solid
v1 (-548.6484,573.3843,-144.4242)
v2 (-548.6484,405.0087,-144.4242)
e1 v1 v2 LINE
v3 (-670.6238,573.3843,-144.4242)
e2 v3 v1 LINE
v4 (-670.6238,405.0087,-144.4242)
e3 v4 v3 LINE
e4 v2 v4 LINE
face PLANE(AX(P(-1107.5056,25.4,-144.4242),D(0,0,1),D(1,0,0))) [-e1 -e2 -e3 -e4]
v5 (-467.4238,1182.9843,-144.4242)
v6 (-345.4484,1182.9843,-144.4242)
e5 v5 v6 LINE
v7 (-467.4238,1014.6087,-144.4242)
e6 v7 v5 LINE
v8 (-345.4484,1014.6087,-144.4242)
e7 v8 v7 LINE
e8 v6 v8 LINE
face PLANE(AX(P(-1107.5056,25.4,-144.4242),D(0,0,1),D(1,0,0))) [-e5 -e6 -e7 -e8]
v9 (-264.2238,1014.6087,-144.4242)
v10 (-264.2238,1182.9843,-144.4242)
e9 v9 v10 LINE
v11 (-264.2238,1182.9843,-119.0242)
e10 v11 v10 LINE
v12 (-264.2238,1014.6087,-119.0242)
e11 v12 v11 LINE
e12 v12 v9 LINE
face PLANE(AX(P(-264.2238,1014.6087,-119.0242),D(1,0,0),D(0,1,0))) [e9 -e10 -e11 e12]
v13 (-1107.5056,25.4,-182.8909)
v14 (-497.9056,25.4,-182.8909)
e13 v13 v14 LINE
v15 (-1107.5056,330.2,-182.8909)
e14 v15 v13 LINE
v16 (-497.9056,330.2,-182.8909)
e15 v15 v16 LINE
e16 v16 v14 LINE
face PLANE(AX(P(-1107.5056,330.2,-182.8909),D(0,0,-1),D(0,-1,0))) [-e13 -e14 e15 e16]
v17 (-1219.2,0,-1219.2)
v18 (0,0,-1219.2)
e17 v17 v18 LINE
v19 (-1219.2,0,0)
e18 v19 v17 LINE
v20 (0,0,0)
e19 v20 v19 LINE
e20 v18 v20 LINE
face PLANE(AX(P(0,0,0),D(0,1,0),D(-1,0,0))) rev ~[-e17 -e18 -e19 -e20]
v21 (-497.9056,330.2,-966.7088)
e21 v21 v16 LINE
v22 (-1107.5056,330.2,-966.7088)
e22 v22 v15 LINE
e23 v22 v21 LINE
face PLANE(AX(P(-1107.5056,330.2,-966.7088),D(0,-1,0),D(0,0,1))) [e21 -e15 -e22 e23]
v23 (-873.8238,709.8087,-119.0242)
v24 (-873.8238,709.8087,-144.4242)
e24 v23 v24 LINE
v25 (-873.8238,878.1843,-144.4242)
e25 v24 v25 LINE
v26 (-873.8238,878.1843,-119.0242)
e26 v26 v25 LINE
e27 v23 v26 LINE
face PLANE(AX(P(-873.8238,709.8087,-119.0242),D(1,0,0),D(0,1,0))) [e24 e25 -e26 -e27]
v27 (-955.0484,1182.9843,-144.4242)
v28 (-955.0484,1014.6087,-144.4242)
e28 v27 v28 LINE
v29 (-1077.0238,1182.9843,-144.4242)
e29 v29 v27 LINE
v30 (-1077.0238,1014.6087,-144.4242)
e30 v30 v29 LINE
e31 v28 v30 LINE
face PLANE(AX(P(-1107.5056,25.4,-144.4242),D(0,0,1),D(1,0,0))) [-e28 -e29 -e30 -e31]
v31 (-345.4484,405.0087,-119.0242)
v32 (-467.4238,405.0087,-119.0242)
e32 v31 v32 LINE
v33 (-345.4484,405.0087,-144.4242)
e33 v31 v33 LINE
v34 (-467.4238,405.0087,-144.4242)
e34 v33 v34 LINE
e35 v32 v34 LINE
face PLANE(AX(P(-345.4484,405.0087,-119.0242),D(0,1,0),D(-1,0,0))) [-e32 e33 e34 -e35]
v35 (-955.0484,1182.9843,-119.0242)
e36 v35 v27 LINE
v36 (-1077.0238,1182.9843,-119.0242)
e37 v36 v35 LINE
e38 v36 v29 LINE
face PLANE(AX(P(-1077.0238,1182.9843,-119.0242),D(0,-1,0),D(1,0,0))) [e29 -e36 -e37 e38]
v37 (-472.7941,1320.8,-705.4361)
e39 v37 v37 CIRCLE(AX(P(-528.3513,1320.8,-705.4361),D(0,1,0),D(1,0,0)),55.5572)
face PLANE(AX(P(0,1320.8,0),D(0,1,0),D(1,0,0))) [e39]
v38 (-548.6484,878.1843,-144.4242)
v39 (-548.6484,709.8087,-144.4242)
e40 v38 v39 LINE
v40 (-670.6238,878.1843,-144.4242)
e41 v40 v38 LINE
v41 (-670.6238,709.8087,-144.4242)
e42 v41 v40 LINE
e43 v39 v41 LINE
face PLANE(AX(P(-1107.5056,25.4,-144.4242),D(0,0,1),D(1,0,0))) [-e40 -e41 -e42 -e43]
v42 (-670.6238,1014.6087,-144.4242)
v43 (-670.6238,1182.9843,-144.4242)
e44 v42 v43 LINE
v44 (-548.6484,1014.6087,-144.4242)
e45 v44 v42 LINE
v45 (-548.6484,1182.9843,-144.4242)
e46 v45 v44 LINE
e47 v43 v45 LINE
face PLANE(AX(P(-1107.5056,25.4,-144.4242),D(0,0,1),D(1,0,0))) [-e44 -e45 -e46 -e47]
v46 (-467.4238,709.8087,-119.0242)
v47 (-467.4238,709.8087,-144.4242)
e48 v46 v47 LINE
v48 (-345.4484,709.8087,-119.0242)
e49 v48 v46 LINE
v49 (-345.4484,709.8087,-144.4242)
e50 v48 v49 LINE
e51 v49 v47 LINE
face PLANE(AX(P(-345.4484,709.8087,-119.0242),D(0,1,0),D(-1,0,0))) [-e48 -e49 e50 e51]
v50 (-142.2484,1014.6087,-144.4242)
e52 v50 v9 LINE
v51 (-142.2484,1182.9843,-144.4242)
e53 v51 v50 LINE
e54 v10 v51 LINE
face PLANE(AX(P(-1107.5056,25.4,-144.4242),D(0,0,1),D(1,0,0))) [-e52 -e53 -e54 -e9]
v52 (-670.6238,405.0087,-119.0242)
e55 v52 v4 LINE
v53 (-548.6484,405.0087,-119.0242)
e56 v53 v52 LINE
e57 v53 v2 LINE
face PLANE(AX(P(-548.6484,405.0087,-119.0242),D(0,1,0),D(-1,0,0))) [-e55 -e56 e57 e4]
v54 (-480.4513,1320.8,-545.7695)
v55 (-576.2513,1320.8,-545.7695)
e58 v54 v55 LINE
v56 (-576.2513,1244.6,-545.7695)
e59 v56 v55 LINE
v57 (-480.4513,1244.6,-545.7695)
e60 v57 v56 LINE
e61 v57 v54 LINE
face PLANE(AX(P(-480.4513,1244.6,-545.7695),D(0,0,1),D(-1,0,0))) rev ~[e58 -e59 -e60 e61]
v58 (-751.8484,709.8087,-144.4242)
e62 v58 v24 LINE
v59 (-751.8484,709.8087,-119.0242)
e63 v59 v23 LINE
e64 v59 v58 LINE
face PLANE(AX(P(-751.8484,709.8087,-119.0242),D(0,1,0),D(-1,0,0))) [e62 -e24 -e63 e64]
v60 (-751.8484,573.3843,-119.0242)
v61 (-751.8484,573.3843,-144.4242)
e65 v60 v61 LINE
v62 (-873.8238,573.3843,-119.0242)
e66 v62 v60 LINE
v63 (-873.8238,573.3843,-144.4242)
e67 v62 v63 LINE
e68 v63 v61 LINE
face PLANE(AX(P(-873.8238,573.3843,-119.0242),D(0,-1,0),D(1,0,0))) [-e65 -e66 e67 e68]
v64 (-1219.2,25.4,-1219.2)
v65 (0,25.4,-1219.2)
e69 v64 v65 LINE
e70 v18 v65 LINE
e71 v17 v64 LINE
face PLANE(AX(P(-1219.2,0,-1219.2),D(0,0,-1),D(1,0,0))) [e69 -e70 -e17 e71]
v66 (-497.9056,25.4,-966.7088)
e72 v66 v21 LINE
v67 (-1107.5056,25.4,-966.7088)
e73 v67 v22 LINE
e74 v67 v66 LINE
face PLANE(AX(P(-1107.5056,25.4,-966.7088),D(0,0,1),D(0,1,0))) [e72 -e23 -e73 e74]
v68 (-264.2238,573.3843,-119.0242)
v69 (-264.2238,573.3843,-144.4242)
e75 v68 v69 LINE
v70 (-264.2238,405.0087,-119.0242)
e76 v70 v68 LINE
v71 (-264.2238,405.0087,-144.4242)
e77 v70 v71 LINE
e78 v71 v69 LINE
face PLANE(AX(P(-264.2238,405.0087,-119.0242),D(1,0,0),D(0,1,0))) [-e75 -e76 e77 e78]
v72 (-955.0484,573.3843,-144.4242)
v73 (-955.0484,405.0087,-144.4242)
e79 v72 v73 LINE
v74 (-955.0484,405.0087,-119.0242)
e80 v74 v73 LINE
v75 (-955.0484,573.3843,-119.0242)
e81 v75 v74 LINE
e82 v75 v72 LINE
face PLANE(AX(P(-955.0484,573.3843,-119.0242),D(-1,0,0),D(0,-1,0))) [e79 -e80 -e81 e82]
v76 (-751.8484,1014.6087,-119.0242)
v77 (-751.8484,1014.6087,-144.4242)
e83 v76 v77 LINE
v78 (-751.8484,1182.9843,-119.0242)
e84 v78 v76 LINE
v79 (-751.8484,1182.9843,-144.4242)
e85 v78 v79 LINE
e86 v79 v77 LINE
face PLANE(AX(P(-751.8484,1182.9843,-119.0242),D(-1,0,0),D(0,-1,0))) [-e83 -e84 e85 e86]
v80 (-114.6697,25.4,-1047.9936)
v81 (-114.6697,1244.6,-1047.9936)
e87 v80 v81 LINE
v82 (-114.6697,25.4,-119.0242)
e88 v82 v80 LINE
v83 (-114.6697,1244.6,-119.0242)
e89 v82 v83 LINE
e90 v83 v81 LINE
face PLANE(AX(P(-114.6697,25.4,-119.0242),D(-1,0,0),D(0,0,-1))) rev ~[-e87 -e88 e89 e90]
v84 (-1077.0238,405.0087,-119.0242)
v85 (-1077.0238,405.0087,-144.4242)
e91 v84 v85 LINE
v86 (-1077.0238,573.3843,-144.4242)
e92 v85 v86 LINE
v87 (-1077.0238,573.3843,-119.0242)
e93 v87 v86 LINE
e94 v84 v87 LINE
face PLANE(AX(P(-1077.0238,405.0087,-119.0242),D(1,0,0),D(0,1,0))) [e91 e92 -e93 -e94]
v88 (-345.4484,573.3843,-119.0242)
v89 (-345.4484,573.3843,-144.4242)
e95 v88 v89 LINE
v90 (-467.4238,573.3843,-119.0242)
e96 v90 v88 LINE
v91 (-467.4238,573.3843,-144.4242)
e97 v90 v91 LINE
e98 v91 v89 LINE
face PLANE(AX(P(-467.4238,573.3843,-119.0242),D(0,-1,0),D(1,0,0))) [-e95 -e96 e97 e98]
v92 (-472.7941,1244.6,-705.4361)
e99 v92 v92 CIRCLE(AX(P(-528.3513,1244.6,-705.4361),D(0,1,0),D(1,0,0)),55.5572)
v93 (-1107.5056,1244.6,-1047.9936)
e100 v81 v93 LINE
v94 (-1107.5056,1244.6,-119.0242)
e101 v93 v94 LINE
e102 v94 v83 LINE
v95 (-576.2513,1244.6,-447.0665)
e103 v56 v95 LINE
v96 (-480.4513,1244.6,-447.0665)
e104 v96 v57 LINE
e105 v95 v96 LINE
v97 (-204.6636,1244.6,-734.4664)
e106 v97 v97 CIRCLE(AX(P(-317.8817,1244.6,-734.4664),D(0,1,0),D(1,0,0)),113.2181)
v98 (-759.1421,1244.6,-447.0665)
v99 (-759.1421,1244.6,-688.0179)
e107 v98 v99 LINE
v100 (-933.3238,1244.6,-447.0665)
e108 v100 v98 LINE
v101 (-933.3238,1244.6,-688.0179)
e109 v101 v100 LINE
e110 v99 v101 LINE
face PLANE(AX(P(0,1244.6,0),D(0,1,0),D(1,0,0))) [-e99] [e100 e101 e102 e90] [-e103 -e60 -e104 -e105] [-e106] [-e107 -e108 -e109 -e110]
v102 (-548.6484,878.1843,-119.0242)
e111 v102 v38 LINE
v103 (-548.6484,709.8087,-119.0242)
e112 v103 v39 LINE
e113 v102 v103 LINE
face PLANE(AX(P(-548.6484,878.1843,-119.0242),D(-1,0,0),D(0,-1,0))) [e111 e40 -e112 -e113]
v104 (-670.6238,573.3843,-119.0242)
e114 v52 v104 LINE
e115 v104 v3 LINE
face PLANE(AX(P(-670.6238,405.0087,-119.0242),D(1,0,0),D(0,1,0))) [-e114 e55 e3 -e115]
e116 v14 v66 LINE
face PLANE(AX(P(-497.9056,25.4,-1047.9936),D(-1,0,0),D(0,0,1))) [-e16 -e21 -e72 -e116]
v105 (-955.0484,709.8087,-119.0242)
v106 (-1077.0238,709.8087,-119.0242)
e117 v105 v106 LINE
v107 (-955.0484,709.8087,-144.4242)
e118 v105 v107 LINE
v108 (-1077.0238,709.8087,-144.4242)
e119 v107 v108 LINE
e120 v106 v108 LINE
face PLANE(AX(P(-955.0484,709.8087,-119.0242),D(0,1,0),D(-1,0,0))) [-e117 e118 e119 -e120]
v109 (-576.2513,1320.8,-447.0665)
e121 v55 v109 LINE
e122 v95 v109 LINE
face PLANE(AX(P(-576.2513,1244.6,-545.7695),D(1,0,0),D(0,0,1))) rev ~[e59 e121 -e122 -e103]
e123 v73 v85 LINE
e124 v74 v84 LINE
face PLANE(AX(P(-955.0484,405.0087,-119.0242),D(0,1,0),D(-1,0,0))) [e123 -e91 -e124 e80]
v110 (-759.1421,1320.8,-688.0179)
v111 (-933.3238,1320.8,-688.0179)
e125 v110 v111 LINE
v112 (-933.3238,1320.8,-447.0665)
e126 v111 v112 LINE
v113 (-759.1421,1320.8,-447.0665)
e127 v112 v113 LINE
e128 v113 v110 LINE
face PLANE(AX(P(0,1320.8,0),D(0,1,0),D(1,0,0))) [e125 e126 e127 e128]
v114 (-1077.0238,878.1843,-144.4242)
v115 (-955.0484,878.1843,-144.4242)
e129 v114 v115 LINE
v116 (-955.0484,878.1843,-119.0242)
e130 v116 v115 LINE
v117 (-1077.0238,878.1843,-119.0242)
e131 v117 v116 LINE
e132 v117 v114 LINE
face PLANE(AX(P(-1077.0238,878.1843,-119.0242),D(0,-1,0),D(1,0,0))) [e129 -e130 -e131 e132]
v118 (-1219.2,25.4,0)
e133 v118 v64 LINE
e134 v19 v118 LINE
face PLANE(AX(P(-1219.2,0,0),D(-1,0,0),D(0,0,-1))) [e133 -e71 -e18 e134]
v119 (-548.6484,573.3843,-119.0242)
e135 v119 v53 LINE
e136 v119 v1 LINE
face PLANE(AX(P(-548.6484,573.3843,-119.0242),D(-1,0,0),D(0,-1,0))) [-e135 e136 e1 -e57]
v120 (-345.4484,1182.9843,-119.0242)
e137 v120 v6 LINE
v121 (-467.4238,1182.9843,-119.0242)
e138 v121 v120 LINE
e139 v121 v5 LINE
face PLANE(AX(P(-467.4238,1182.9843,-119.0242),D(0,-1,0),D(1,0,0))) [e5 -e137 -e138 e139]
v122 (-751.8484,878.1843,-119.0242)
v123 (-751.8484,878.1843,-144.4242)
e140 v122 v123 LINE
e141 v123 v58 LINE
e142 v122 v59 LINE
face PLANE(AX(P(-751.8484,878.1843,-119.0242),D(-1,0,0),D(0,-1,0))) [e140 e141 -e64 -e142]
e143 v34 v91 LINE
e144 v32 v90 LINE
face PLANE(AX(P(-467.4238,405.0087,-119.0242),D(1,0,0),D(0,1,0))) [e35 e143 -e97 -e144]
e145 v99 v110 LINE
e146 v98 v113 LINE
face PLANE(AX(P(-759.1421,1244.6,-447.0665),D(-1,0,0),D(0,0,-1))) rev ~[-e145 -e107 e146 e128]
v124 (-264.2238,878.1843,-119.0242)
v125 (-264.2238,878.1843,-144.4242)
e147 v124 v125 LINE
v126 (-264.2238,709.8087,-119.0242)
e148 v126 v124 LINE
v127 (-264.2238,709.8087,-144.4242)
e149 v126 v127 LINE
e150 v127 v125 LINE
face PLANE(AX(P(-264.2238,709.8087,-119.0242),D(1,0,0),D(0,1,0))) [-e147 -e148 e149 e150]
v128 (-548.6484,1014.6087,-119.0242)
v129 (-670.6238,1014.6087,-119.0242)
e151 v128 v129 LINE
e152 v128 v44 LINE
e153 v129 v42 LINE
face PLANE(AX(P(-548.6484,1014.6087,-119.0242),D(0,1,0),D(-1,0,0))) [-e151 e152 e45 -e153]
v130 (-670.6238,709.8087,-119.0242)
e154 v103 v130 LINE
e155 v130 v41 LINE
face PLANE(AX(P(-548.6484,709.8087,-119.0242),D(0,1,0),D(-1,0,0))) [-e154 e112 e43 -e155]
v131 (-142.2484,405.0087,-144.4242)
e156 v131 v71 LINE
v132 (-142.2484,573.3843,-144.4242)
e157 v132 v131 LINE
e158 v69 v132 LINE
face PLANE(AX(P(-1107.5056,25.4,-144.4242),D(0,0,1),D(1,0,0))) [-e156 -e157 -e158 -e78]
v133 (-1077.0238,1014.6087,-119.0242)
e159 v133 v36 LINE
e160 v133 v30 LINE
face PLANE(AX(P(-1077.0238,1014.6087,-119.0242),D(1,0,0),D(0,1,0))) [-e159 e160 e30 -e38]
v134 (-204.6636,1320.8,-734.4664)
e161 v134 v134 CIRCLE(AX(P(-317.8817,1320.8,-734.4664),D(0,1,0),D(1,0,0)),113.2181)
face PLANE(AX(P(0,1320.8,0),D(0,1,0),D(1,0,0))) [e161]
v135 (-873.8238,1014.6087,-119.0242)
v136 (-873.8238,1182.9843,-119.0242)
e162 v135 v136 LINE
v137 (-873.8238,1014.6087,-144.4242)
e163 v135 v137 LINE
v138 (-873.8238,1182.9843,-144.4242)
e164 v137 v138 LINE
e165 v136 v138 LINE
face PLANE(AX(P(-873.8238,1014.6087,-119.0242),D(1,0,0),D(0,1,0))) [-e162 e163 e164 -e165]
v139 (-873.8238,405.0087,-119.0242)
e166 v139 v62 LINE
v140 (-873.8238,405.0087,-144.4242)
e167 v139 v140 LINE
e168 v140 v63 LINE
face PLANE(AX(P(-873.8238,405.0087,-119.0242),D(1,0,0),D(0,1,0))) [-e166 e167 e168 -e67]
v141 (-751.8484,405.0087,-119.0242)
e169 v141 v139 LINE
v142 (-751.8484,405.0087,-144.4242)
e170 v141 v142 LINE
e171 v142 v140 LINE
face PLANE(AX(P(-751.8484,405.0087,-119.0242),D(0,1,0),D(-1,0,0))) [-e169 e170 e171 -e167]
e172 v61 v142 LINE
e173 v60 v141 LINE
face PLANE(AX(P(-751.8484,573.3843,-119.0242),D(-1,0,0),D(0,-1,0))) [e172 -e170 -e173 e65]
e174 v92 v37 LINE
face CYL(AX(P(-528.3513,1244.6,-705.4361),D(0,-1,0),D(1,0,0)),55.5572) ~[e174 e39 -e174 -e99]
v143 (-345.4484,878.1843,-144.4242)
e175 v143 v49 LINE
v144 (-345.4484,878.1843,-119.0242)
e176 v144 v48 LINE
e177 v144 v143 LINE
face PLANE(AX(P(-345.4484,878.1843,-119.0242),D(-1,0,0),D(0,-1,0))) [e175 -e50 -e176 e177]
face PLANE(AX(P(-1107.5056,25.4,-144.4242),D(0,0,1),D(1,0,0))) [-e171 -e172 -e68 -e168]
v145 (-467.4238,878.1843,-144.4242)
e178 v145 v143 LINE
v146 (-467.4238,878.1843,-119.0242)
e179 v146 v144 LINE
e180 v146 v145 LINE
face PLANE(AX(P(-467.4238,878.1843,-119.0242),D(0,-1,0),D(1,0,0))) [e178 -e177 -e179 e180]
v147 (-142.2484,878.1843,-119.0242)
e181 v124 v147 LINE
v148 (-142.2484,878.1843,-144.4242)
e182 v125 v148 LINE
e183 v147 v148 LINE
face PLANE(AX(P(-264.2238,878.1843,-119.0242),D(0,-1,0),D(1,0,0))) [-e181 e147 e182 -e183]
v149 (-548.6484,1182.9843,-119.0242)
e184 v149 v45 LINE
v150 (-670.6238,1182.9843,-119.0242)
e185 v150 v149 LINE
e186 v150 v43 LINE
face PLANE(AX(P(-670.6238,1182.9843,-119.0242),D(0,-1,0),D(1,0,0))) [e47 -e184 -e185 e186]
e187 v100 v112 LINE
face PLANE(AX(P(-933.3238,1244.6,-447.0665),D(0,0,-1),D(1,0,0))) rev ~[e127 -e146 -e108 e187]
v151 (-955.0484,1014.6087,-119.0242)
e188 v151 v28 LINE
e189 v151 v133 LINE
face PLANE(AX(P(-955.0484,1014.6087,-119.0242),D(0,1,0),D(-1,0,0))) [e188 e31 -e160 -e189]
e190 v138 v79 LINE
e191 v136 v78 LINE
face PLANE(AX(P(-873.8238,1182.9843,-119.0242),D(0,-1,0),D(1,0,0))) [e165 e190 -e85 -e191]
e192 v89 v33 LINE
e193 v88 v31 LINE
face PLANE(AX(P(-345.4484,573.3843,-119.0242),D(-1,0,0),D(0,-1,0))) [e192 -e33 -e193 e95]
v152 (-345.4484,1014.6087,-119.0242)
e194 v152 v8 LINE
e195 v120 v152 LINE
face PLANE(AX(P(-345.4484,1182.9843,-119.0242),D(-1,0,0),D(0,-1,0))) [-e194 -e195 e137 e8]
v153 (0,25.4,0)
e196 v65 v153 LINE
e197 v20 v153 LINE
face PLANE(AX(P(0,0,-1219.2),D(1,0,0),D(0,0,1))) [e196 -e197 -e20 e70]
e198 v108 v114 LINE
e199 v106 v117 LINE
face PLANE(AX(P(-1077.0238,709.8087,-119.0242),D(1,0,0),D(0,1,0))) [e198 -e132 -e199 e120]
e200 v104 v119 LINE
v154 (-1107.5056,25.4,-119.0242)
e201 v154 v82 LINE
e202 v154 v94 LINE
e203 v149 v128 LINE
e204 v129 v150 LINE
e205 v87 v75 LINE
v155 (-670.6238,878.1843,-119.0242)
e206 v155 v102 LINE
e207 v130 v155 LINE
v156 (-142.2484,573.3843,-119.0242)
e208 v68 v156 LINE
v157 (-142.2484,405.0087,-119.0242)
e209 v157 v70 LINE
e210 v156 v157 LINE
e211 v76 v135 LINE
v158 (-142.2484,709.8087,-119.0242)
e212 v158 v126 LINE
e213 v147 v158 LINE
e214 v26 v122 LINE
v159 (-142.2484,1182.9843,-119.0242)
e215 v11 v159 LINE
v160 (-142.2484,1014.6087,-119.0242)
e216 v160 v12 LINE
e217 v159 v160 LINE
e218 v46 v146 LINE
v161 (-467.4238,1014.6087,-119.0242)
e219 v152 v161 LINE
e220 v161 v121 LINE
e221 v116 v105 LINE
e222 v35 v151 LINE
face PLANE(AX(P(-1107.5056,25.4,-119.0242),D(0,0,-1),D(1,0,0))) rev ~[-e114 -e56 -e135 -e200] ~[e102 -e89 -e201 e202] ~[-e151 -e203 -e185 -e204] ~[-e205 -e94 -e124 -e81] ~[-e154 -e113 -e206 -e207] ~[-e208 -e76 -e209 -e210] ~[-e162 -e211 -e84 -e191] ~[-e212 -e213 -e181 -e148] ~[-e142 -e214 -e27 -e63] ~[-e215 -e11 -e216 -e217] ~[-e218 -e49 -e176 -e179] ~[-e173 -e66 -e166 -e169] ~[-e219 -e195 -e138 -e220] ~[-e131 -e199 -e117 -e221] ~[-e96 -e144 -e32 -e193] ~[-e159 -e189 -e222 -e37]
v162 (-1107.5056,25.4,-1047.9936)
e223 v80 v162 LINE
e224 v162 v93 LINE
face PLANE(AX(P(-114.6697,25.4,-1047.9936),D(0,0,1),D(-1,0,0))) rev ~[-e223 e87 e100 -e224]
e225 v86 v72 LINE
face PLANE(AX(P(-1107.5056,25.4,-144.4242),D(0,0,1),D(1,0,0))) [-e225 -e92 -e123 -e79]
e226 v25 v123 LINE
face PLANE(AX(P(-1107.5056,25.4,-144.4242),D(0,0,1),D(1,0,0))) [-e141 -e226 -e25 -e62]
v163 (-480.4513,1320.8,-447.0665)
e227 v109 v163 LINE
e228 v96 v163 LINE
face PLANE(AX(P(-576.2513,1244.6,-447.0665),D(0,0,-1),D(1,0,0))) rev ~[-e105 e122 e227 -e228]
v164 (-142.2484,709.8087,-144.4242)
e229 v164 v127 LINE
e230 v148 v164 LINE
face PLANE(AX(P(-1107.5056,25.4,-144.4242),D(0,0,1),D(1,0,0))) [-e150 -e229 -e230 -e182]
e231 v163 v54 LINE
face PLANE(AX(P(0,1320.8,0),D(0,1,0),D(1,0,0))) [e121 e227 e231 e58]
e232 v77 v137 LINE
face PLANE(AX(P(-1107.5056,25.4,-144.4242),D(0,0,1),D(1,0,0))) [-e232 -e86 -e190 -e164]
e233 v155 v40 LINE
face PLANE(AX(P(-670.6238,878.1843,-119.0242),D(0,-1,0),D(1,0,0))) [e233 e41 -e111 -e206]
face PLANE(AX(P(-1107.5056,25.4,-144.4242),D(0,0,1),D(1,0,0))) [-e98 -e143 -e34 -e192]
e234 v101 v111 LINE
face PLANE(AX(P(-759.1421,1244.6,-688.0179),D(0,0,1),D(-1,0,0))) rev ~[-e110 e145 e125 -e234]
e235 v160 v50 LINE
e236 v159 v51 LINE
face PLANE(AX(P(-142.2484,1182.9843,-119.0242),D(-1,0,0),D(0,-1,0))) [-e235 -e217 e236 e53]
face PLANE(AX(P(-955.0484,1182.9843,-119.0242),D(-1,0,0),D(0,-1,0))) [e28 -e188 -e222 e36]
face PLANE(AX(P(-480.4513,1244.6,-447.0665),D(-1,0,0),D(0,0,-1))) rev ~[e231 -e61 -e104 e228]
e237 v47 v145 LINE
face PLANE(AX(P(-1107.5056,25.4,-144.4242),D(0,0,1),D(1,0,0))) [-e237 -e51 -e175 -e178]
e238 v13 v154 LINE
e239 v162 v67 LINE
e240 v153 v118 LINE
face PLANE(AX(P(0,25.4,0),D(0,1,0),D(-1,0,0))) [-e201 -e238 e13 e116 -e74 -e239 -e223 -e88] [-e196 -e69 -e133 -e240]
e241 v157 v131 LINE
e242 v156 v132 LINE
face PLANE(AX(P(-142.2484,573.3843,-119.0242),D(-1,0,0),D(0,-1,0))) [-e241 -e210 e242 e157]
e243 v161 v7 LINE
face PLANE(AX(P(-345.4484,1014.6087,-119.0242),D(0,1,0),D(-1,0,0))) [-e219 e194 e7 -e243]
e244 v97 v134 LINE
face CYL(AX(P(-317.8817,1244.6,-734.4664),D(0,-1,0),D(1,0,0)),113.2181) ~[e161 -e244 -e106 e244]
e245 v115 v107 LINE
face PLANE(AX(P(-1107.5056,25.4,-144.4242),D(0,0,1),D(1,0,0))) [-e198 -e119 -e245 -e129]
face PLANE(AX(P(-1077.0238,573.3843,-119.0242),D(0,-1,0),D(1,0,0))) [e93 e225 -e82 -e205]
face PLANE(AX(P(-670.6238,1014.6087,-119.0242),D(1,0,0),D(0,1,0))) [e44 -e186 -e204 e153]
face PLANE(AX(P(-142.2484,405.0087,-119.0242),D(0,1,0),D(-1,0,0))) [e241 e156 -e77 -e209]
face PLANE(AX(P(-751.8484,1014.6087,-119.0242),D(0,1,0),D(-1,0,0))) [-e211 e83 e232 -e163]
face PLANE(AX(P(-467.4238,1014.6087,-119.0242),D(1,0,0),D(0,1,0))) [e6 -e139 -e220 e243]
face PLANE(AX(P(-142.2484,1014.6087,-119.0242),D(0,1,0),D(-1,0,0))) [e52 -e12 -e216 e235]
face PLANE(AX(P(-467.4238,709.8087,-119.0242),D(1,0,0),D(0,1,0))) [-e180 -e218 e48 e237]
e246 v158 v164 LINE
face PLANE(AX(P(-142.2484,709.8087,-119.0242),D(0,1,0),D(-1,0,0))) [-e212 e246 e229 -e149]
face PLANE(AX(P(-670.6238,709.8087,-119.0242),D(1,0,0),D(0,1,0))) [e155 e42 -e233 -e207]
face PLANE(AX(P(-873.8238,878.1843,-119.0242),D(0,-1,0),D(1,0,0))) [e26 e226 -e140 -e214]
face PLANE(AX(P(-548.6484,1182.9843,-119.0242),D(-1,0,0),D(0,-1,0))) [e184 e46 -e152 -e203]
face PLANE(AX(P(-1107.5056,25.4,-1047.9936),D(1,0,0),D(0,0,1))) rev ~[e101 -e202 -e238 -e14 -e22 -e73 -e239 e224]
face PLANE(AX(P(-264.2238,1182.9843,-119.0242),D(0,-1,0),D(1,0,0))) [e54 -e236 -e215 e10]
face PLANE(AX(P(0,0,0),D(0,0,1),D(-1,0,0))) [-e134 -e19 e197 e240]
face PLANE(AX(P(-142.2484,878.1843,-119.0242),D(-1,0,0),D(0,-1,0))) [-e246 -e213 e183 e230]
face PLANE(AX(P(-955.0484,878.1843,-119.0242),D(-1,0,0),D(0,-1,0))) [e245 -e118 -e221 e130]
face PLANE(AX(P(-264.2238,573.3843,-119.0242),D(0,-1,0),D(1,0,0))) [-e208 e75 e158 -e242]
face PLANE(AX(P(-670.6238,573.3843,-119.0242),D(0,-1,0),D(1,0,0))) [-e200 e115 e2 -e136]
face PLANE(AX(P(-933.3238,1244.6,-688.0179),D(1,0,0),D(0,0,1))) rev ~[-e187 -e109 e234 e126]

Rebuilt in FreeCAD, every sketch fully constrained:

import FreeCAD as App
import Part
import Sketcher
Q = App.Units.Quantity

doc = App.newDocument("Part")
body = doc.addObject("PartDesign::Body", "Body")

# Sketch on XZ plane
sketch1 = doc.addObject("Sketcher::SketchObject", "Sketch")
body.addObject(sketch1)
sketch1.AttachmentSupport = (doc.XZ_Plane, [""])
sketch1.MapMode = "FlatFace"
sketch1.addGeometry([
    Part.LineSegment(App.Vector(-1219.2, 0, 0), App.Vector(0, 0, 0)),
    Part.LineSegment(App.Vector(0, 0, 0), App.Vector(0, -1219.2, 0)),
    Part.LineSegment(App.Vector(0, -1219.2, 0), App.Vector(-1219.2, -1219.2, 0)),
    Part.LineSegment(App.Vector(-1219.2, -1219.2, 0), App.Vector(-1219.2, 0, 0)),
], False)
sketch1.addConstraint([
    Sketcher.Constraint("Coincident", 0, 2, 1, 1),
    Sketcher.Constraint("Coincident", 1, 2, 2, 1),
    Sketcher.Constraint("Coincident", 2, 2, 3, 1),
    Sketcher.Constraint("Coincident", 3, 2, 0, 1),
    Sketcher.Constraint("Horizontal", 0),
    Sketcher.Constraint("Vertical", 1),
    Sketcher.Constraint("Horizontal", 2),
    Sketcher.Constraint("Vertical", 3),
    Sketcher.Constraint("Coincident", 0, 2, -1, 1),
    Sketcher.Constraint("Equal", 2, 1),
    Sketcher.Constraint("DistanceX", 0, 1, 0, 2, Q("48 in")),
])
pad1 = doc.addObject("PartDesign::Pad", "Pad")
body.addObject(pad1)
pad1.Profile = sketch1
pad1.Length = Q("1 in")
pad1.Reversed = True

# Sketch on XZ plane
sketch2 = doc.addObject("Sketcher::SketchObject", "Sketch001")
body.addObject(sketch2)
sketch2.AttachmentSupport = (doc.XZ_Plane, [""])
sketch2.MapMode = "FlatFace"
sketch2.AttachmentOffset = App.Placement(App.Vector(0, 0, -1 * 25.4), App.Rotation())
sketch2.addGeometry([
    Part.LineSegment(App.Vector(-1107.5056, -1047.9936, 0), App.Vector(-1107.5056, -119.0242, 0)),
    Part.LineSegment(App.Vector(-1107.5056, -119.0242, 0), App.Vector(-114.6697, -119.0242, 0)),
    Part.LineSegment(App.Vector(-114.6697, -119.0242, 0), App.Vector(-114.6697, -1047.9936, 0)),
    Part.LineSegment(App.Vector(-114.6697, -1047.9936, 0), App.Vector(-1107.5056, -1047.9936, 0)),
], False)
sketch2.addConstraint([
    Sketcher.Constraint("Coincident", 0, 2, 1, 1),
    Sketcher.Constraint("Coincident", 1, 2, 2, 1),
    Sketcher.Constraint("Coincident", 2, 2, 3, 1),
    Sketcher.Constraint("Coincident", 3, 2, 0, 1),
    Sketcher.Constraint("Vertical", 0),
    Sketcher.Constraint("Horizontal", 1),
    Sketcher.Constraint("Vertical", 2),
    Sketcher.Constraint("Horizontal", 3),
    Sketcher.Constraint("DistanceY", 0, 1, 0, 2, Q("36.5736 in")),
    Sketcher.Constraint("DistanceY", 0, 2, -1, 1, Q("4.686 in")),
    Sketcher.Constraint("DistanceX", 1, 1, 1, 2, Q("992.836 mm")),
    Sketcher.Constraint("DistanceX", 0, 2, -1, 1, Q("1107.5056 mm")),
])
pad2 = doc.addObject("PartDesign::Pad", "Pad001")
body.addObject(pad2)
pad2.Profile = sketch2
pad2.Length = Q("48 in")
pad2.Reversed = True

# Sketch on XZ plane
sketch3 = doc.addObject("Sketcher::SketchObject", "Sketch002")
body.addObject(sketch3)
sketch3.AttachmentSupport = (doc.XZ_Plane, [""])
sketch3.MapMode = "FlatFace"
sketch3.AttachmentOffset = App.Placement(App.Vector(0, 0, -49 * 25.4), App.Rotation())
sketch3.addGeometry([
    Part.LineSegment(App.Vector(-933.3238, -688.0179, 0), App.Vector(-933.3238, -447.0665, 0)),  # 0
    Part.LineSegment(App.Vector(-933.3238, -447.0665, 0), App.Vector(-759.1421, -447.0665, 0)),  # 1
    Part.LineSegment(App.Vector(-759.1421, -447.0665, 0), App.Vector(-759.1421, -688.0179, 0)),  # 2
    Part.LineSegment(App.Vector(-759.1421, -688.0179, 0), App.Vector(-933.3238, -688.0179, 0)),  # 3
    Part.LineSegment(App.Vector(-576.2513, -545.7695, 0), App.Vector(-576.2513, -447.0665, 0)),  # 4
    Part.LineSegment(App.Vector(-576.2513, -447.0665, 0), App.Vector(-480.4513, -447.0665, 0)),  # 5
    Part.LineSegment(App.Vector(-480.4513, -447.0665, 0), App.Vector(-480.4513, -545.7695, 0)),  # 6
    Part.LineSegment(App.Vector(-480.4513, -545.7695, 0), App.Vector(-576.2513, -545.7695, 0)),  # 7
    Part.Circle(App.Vector(-528.3513, -705.4361, 0), App.Vector(0, 0, 1), 55.5572),  # 8
    Part.Circle(App.Vector(-317.8817, -734.4664, 0), App.Vector(0, 0, 1), 113.2181),  # 9
], False)
sketch3.addConstraint([
    Sketcher.Constraint("Coincident", 0, 2, 1, 1),
    Sketcher.Constraint("Coincident", 1, 2, 2, 1),
    Sketcher.Constraint("Coincident", 2, 2, 3, 1),
    Sketcher.Constraint("Coincident", 3, 2, 0, 1),
    Sketcher.Constraint("Coincident", 4, 2, 5, 1),
    Sketcher.Constraint("Coincident", 5, 2, 6, 1),
    Sketcher.Constraint("Coincident", 6, 2, 7, 1),
    Sketcher.Constraint("Coincident", 7, 2, 4, 1),
    Sketcher.Constraint("Vertical", 0),
    Sketcher.Constraint("Horizontal", 1),
    Sketcher.Constraint("Vertical", 2),
    Sketcher.Constraint("Horizontal", 3),
    Sketcher.Constraint("Vertical", 4),
    Sketcher.Constraint("Horizontal", 5),
    Sketcher.Constraint("Vertical", 6),
    Sketcher.Constraint("Horizontal", 7),
    Sketcher.Constraint("Horizontal", 1, 2, 4, 2),
    Sketcher.Constraint("Diameter", 9, Q("8.9148 in")),
    Sketcher.Constraint("Diameter", 8, Q("111.1144 mm")),
    Sketcher.Constraint("DistanceX", 0, 2, 9, 3, Q("24.23 in")),
    Sketcher.Constraint("DistanceY", 9, 3, -1, 1, Q("28.916 in")),
    Sketcher.Constraint("DistanceY", 6, 2, -1, 1, Q("21.487 in")),
    Sketcher.Constraint("DistanceX", 1, 1, 1, 2, Q("174.1817 mm")),
    Sketcher.Constraint("DistanceX", 5, 1, 5, 2, Q("95.8 mm")),
    Sketcher.Constraint("DistanceY", 0, 1, 0, 2, Q("240.9514 mm")),
    Sketcher.Constraint("DistanceY", 4, 1, 4, 2, Q("98.703 mm")),
    Sketcher.Constraint("DistanceX", 5, 2, -1, 1, Q("18.9154 in")),
    Sketcher.Constraint("DistanceX", 8, 3, 9, 3, Q("8.2862 in")),
    Sketcher.Constraint("DistanceX", 8, 3, -1, 1, Q("528.3513 mm")),
    Sketcher.Constraint("DistanceY", 8, 3, -1, 1, Q("705.436 mm")),
])
pad3 = doc.addObject("PartDesign::Pad", "Pad002")
body.addObject(pad3)
pad3.Profile = sketch3
pad3.Length = Q("3 in")
pad3.Reversed = True

# Sketch on XY plane
sketch4 = doc.addObject("Sketcher::SketchObject", "Sketch003")
body.addObject(sketch4)
sketch4.AttachmentSupport = (doc.XY_Plane, [""])
sketch4.MapMode = "FlatFace"
sketch4.AttachmentOffset = App.Placement(App.Vector(0, 0, -4.6859921 * 25.4), App.Rotation())
sketch4.addGeometry([
    Part.LineSegment(App.Vector(-955.0484, 1182.9843, 0), App.Vector(-1077.0238, 1182.9843, 0)),  # 0
    Part.LineSegment(App.Vector(-1077.0238, 1182.9843, 0), App.Vector(-1077.0238, 1014.6087, 0)),  # 1
    Part.LineSegment(App.Vector(-1077.0238, 1014.6087, 0), App.Vector(-955.0484, 1014.6087, 0)),  # 2
    Part.LineSegment(App.Vector(-955.0484, 1014.6087, 0), App.Vector(-955.0484, 1182.9843, 0)),  # 3
    Part.LineSegment(App.Vector(-751.8484, 1182.9843, 0), App.Vector(-873.8238, 1182.9843, 0)),  # 4
    Part.LineSegment(App.Vector(-873.8238, 1182.9843, 0), App.Vector(-873.8238, 1014.6087, 0)),  # 5
    Part.LineSegment(App.Vector(-873.8238, 1014.6087, 0), App.Vector(-751.8484, 1014.6087, 0)),  # 6
    Part.LineSegment(App.Vector(-751.8484, 1014.6087, 0), App.Vector(-751.8484, 1182.9843, 0)),  # 7
    Part.LineSegment(App.Vector(-548.6484, 1182.9843, 0), App.Vector(-670.6238, 1182.9843, 0)),  # 8
    Part.LineSegment(App.Vector(-670.6238, 1182.9843, 0), App.Vector(-670.6238, 1014.6087, 0)),  # 9
    Part.LineSegment(App.Vector(-670.6238, 1014.6087, 0), App.Vector(-548.6484, 1014.6087, 0)),  # 10
    Part.LineSegment(App.Vector(-548.6484, 1014.6087, 0), App.Vector(-548.6484, 1182.9843, 0)),  # 11
    Part.LineSegment(App.Vector(-345.4484, 1182.9843, 0), App.Vector(-467.4238, 1182.9843, 0)),  # 12
    Part.LineSegment(App.Vector(-467.4238, 1182.9843, 0), App.Vector(-467.4238, 1014.6087, 0)),  # 13
    Part.LineSegment(App.Vector(-467.4238, 1014.6087, 0), App.Vector(-345.4484, 1014.6087, 0)),  # 14
    Part.LineSegment(App.Vector(-345.4484, 1014.6087, 0), App.Vector(-345.4484, 1182.9843, 0)),  # 15
    Part.LineSegment(App.Vector(-142.2484, 1182.9843, 0), App.Vector(-264.2238, 1182.9843, 0)),  # 16
    Part.LineSegment(App.Vector(-264.2238, 1182.9843, 0), App.Vector(-264.2238, 1014.6087, 0)),  # 17
    Part.LineSegment(App.Vector(-264.2238, 1014.6087, 0), App.Vector(-142.2484, 1014.6087, 0)),  # 18
    Part.LineSegment(App.Vector(-142.2484, 1014.6087, 0), App.Vector(-142.2484, 1182.9843, 0)),  # 19
    Part.LineSegment(App.Vector(-955.0484, 878.1843, 0), App.Vector(-1077.0238, 878.1843, 0)),  # 20
    Part.LineSegment(App.Vector(-1077.0238, 878.1843, 0), App.Vector(-1077.0238, 709.8087, 0)),  # 21
    Part.LineSegment(App.Vector(-1077.0238, 709.8087, 0), App.Vector(-955.0484, 709.8087, 0)),  # 22
    Part.LineSegment(App.Vector(-955.0484, 709.8087, 0), App.Vector(-955.0484, 878.1843, 0)),  # 23
    Part.LineSegment(App.Vector(-751.8484, 878.1843, 0), App.Vector(-873.8238, 878.1843, 0)),  # 24
    Part.LineSegment(App.Vector(-873.8238, 878.1843, 0), App.Vector(-873.8238, 709.8087, 0)),  # 25
    Part.LineSegment(App.Vector(-873.8238, 709.8087, 0), App.Vector(-751.8484, 709.8087, 0)),  # 26
    Part.LineSegment(App.Vector(-751.8484, 709.8087, 0), App.Vector(-751.8484, 878.1843, 0)),  # 27
    Part.LineSegment(App.Vector(-548.6484, 878.1843, 0), App.Vector(-670.6238, 878.1843, 0)),  # 28
    Part.LineSegment(App.Vector(-670.6238, 878.1843, 0), App.Vector(-670.6238, 709.8087, 0)),  # 29
    Part.LineSegment(App.Vector(-670.6238, 709.8087, 0), App.Vector(-548.6484, 709.8087, 0)),  # 30
    Part.LineSegment(App.Vector(-548.6484, 709.8087, 0), App.Vector(-548.6484, 878.1843, 0)),  # 31
    Part.LineSegment(App.Vector(-345.4484, 878.1843, 0), App.Vector(-467.4238, 878.1843, 0)),  # 32
    Part.LineSegment(App.Vector(-467.4238, 878.1843, 0), App.Vector(-467.4238, 709.8087, 0)),  # 33
    Part.LineSegment(App.Vector(-467.4238, 709.8087, 0), App.Vector(-345.4484, 709.8087, 0)),  # 34
    Part.LineSegment(App.Vector(-345.4484, 709.8087, 0), App.Vector(-345.4484, 878.1843, 0)),  # 35
    Part.LineSegment(App.Vector(-142.2484, 878.1843, 0), App.Vector(-264.2238, 878.1843, 0)),  # 36
    Part.LineSegment(App.Vector(-264.2238, 878.1843, 0), App.Vector(-264.2238, 709.8087, 0)),  # 37
    Part.LineSegment(App.Vector(-264.2238, 709.8087, 0), App.Vector(-142.2484, 709.8087, 0)),  # 38
    Part.LineSegment(App.Vector(-142.2484, 709.8087, 0), App.Vector(-142.2484, 878.1843, 0)),  # 39
    Part.LineSegment(App.Vector(-955.0484, 573.3843, 0), App.Vector(-1077.0238, 573.3843, 0)),  # 40
    Part.LineSegment(App.Vector(-1077.0238, 573.3843, 0), App.Vector(-1077.0238, 405.0087, 0)),  # 41
    Part.LineSegment(App.Vector(-1077.0238, 405.0087, 0), App.Vector(-955.0484, 405.0087, 0)),  # 42
    Part.LineSegment(App.Vector(-955.0484, 405.0087, 0), App.Vector(-955.0484, 573.3843, 0)),  # 43
    Part.LineSegment(App.Vector(-751.8484, 573.3843, 0), App.Vector(-873.8238, 573.3843, 0)),  # 44
    Part.LineSegment(App.Vector(-873.8238, 573.3843, 0), App.Vector(-873.8238, 405.0087, 0)),  # 45
    Part.LineSegment(App.Vector(-873.8238, 405.0087, 0), App.Vector(-751.8484, 405.0087, 0)),  # 46
    Part.LineSegment(App.Vector(-751.8484, 405.0087, 0), App.Vector(-751.8484, 573.3843, 0)),  # 47
    Part.LineSegment(App.Vector(-548.6484, 573.3843, 0), App.Vector(-670.6238, 573.3843, 0)),  # 48
    Part.LineSegment(App.Vector(-670.6238, 573.3843, 0), App.Vector(-670.6238, 405.0087, 0)),  # 49
    Part.LineSegment(App.Vector(-670.6238, 405.0087, 0), App.Vector(-548.6484, 405.0087, 0)),  # 50
    Part.LineSegment(App.Vector(-548.6484, 405.0087, 0), App.Vector(-548.6484, 573.3843, 0)),  # 51
    Part.LineSegment(App.Vector(-345.4484, 573.3843, 0), App.Vector(-467.4238, 573.3843, 0)),  # 52
    Part.LineSegment(App.Vector(-467.4238, 573.3843, 0), App.Vector(-467.4238, 405.0087, 0)),  # 53
    Part.LineSegment(App.Vector(-467.4238, 405.0087, 0), App.Vector(-345.4484, 405.0087, 0)),  # 54
    Part.LineSegment(App.Vector(-345.4484, 405.0087, 0), App.Vector(-345.4484, 573.3843, 0)),  # 55
    Part.LineSegment(App.Vector(-142.2484, 573.3843, 0), App.Vector(-264.2238, 573.3843, 0)),  # 56
    Part.LineSegment(App.Vector(-264.2238, 573.3843, 0), App.Vector(-264.2238, 405.0087, 0)),  # 57
    Part.LineSegment(App.Vector(-264.2238, 405.0087, 0), App.Vector(-142.2484, 405.0087, 0)),  # 58
    Part.LineSegment(App.Vector(-142.2484, 405.0087, 0), App.Vector(-142.2484, 573.3843, 0)),  # 59
], False)
sketch4.addConstraint([
    Sketcher.Constraint("Coincident", 0, 2, 1, 1),
    Sketcher.Constraint("Coincident", 1, 2, 2, 1),
    Sketcher.Constraint("Coincident", 2, 2, 3, 1),
    Sketcher.Constraint("Coincident", 3, 2, 0, 1),
    Sketcher.Constraint("Coincident", 4, 2, 5, 1),
    Sketcher.Constraint("Coincident", 5, 2, 6, 1),
    Sketcher.Constraint("Coincident", 6, 2, 7, 1),
    Sketcher.Constraint("Coincident", 7, 2, 4, 1),
    Sketcher.Constraint("Coincident", 8, 2, 9, 1),
    Sketcher.Constraint("Coincident", 9, 2, 10, 1),
    Sketcher.Constraint("Coincident", 10, 2, 11, 1),
    Sketcher.Constraint("Coincident", 11, 2, 8, 1),
    Sketcher.Constraint("Coincident", 12, 2, 13, 1),
    Sketcher.Constraint("Coincident", 13, 2, 14, 1),
    Sketcher.Constraint("Coincident", 14, 2, 15, 1),
    Sketcher.Constraint("Coincident", 15, 2, 12, 1),
    Sketcher.Constraint("Coincident", 16, 2, 17, 1),
    Sketcher.Constraint("Coincident", 17, 2, 18, 1),
    Sketcher.Constraint("Coincident", 18, 2, 19, 1),
    Sketcher.Constraint("Coincident", 19, 2, 16, 1),
    Sketcher.Constraint("Coincident", 20, 2, 21, 1),
    Sketcher.Constraint("Coincident", 21, 2, 22, 1),
    Sketcher.Constraint("Coincident", 22, 2, 23, 1),
    Sketcher.Constraint("Coincident", 23, 2, 20, 1),
    Sketcher.Constraint("Coincident", 24, 2, 25, 1),
    Sketcher.Constraint("Coincident", 25, 2, 26, 1),
    Sketcher.Constraint("Coincident", 26, 2, 27, 1),
    Sketcher.Constraint("Coincident", 27, 2, 24, 1),
    Sketcher.Constraint("Coincident", 28, 2, 29, 1),
    Sketcher.Constraint("Coincident", 29, 2, 30, 1),
    Sketcher.Constraint("Coincident", 30, 2, 31, 1),
    Sketcher.Constraint("Coincident", 31, 2, 28, 1),
    Sketcher.Constraint("Coincident", 32, 2, 33, 1),
    Sketcher.Constraint("Coincident", 33, 2, 34, 1),
    Sketcher.Constraint("Coincident", 34, 2, 35, 1),
    Sketcher.Constraint("Coincident", 35, 2, 32, 1),
    Sketcher.Constraint("Coincident", 36, 2, 37, 1),
    Sketcher.Constraint("Coincident", 37, 2, 38, 1),
    Sketcher.Constraint("Coincident", 38, 2, 39, 1),
    Sketcher.Constraint("Coincident", 39, 2, 36, 1),
    Sketcher.Constraint("Coincident", 40, 2, 41, 1),
    Sketcher.Constraint("Coincident", 41, 2, 42, 1),
    Sketcher.Constraint("Coincident", 42, 2, 43, 1),
    Sketcher.Constraint("Coincident", 43, 2, 40, 1),
    Sketcher.Constraint("Coincident", 44, 2, 45, 1),
    Sketcher.Constraint("Coincident", 45, 2, 46, 1),
    Sketcher.Constraint("Coincident", 46, 2, 47, 1),
    Sketcher.Constraint("Coincident", 47, 2, 44, 1),
    Sketcher.Constraint("Coincident", 48, 2, 49, 1),
    Sketcher.Constraint("Coincident", 49, 2, 50, 1),
    Sketcher.Constraint("Coincident", 50, 2, 51, 1),
    Sketcher.Constraint("Coincident", 51, 2, 48, 1),
    Sketcher.Constraint("Coincident", 52, 2, 53, 1),
    Sketcher.Constraint("Coincident", 53, 2, 54, 1),
    Sketcher.Constraint("Coincident", 54, 2, 55, 1),
    Sketcher.Constraint("Coincident", 55, 2, 52, 1),
    Sketcher.Constraint("Coincident", 56, 2, 57, 1),
    Sketcher.Constraint("Coincident", 57, 2, 58, 1),
    Sketcher.Constraint("Coincident", 58, 2, 59, 1),
    Sketcher.Constraint("Coincident", 59, 2, 56, 1),
    Sketcher.Constraint("Horizontal", 0),
    Sketcher.Constraint("Vertical", 1),
    Sketcher.Constraint("Horizontal", 2),
    Sketcher.Constraint("Vertical", 3),
    Sketcher.Constraint("Horizontal", 4),
    Sketcher.Constraint("Vertical", 5),
    Sketcher.Constraint("Horizontal", 6),
    Sketcher.Constraint("Vertical", 7),
    Sketcher.Constraint("Horizontal", 8),
    Sketcher.Constraint("Vertical", 9),
    Sketcher.Constraint("Horizontal", 10),
    Sketcher.Constraint("Vertical", 11),
    Sketcher.Constraint("Horizontal", 12),
    Sketcher.Constraint("Vertical", 13),
    Sketcher.Constraint("Horizontal", 14),
    Sketcher.Constraint("Vertical", 15),
    Sketcher.Constraint("Horizontal", 16),
    Sketcher.Constraint("Vertical", 17),
    Sketcher.Constraint("Horizontal", 18),
    Sketcher.Constraint("Vertical", 19),
    Sketcher.Constraint("Horizontal", 20),
    Sketcher.Constraint("Vertical", 21),
    Sketcher.Constraint("Horizontal", 22),
    Sketcher.Constraint("Vertical", 23),
    Sketcher.Constraint("Horizontal", 24),
    Sketcher.Constraint("Vertical", 25),
    Sketcher.Constraint("Horizontal", 26),
    Sketcher.Constraint("Vertical", 27),
    Sketcher.Constraint("Horizontal", 28),
    Sketcher.Constraint("Vertical", 29),
    Sketcher.Constraint("Horizontal", 30),
    Sketcher.Constraint("Vertical", 31),
    Sketcher.Constraint("Horizontal", 32),
    Sketcher.Constraint("Vertical", 33),
    Sketcher.Constraint("Horizontal", 34),
    Sketcher.Constraint("Vertical", 35),
    Sketcher.Constraint("Horizontal", 36),
    Sketcher.Constraint("Vertical", 37),
    Sketcher.Constraint("Horizontal", 38),
    Sketcher.Constraint("Vertical", 39),
    Sketcher.Constraint("Horizontal", 40),
    Sketcher.Constraint("Vertical", 41),
    Sketcher.Constraint("Horizontal", 42),
    Sketcher.Constraint("Vertical", 43),
    Sketcher.Constraint("Horizontal", 44),
    Sketcher.Constraint("Vertical", 45),
    Sketcher.Constraint("Horizontal", 46),
    Sketcher.Constraint("Vertical", 47),
    Sketcher.Constraint("Horizontal", 48),
    Sketcher.Constraint("Vertical", 49),
    Sketcher.Constraint("Horizontal", 50),
    Sketcher.Constraint("Vertical", 51),
    Sketcher.Constraint("Horizontal", 52),
    Sketcher.Constraint("Vertical", 53),
    Sketcher.Constraint("Horizontal", 54),
    Sketcher.Constraint("Vertical", 55),
    Sketcher.Constraint("Horizontal", 56),
    Sketcher.Constraint("Vertical", 57),
    Sketcher.Constraint("Horizontal", 58),
    Sketcher.Constraint("Vertical", 59),
    Sketcher.Constraint("Horizontal", 3, 2, 4, 2),
    Sketcher.Constraint("Horizontal", 2, 2, 5, 2),
    Sketcher.Constraint("Horizontal", 7, 2, 8, 2),
    Sketcher.Constraint("Horizontal", 6, 2, 9, 2),
    Sketcher.Constraint("Horizontal", 11, 2, 12, 2),
    Sketcher.Constraint("Horizontal", 10, 2, 13, 2),
    Sketcher.Constraint("Horizontal", 15, 2, 16, 2),
    Sketcher.Constraint("Horizontal", 14, 2, 17, 2),
    Sketcher.Constraint("Horizontal", 23, 2, 24, 2),
    Sketcher.Constraint("Horizontal", 22, 2, 25, 2),
    Sketcher.Constraint("Horizontal", 27, 2, 28, 2),
    Sketcher.Constraint("Horizontal", 26, 2, 29, 2),
    Sketcher.Constraint("Horizontal", 31, 2, 32, 2),
    Sketcher.Constraint("Horizontal", 30, 2, 33, 2),
    Sketcher.Constraint("Horizontal", 35, 2, 36, 2),
    Sketcher.Constraint("Horizontal", 34, 2, 37, 2),
    Sketcher.Constraint("Horizontal", 43, 2, 44, 2),
    Sketcher.Constraint("Horizontal", 42, 2, 45, 2),
    Sketcher.Constraint("Horizontal", 47, 2, 48, 2),
    Sketcher.Constraint("Horizontal", 46, 2, 49, 2),
    Sketcher.Constraint("Horizontal", 51, 2, 52, 2),
    Sketcher.Constraint("Horizontal", 50, 2, 53, 2),
    Sketcher.Constraint("Horizontal", 55, 2, 56, 2),
    Sketcher.Constraint("Horizontal", 54, 2, 57, 2),
    Sketcher.Constraint("Vertical", 1, 2, 20, 2),
    Sketcher.Constraint("Vertical", 3, 2, 22, 2),
    Sketcher.Constraint("Vertical", 5, 2, 24, 2),
    Sketcher.Constraint("Vertical", 7, 2, 26, 2),
    Sketcher.Constraint("Vertical", 9, 2, 28, 2),
    Sketcher.Constraint("Vertical", 11, 2, 30, 2),
    Sketcher.Constraint("Vertical", 13, 2, 32, 2),
    Sketcher.Constraint("Vertical", 15, 2, 34, 2),
    Sketcher.Constraint("Vertical", 17, 2, 36, 2),
    Sketcher.Constraint("Vertical", 19, 2, 38, 2),
    Sketcher.Constraint("Vertical", 21, 2, 40, 2),
    Sketcher.Constraint("Vertical", 23, 2, 42, 2),
    Sketcher.Constraint("Vertical", 25, 2, 44, 2),
    Sketcher.Constraint("Vertical", 27, 2, 46, 2),
    Sketcher.Constraint("Vertical", 29, 2, 48, 2),
    Sketcher.Constraint("Vertical", 31, 2, 50, 2),
    Sketcher.Constraint("Vertical", 33, 2, 52, 2),
    Sketcher.Constraint("Vertical", 35, 2, 54, 2),
    Sketcher.Constraint("Vertical", 37, 2, 56, 2),
    Sketcher.Constraint("Vertical", 39, 2, 58, 2),
    Sketcher.Constraint("Equal", 2, 4),
    Sketcher.Constraint("Equal", 6, 8),
    Sketcher.Constraint("Equal", 10, 12),
    Sketcher.Constraint("Equal", 14, 16),
    Sketcher.Constraint("Equal", 19, 21),
    Sketcher.Constraint("Equal", 39, 41),
    Sketcher.Constraint("DistanceX", 0, 2, 4, 2, Q("8 in")),
    Sketcher.Constraint("DistanceX", 4, 2, 8, 2, Q("8 in")),
    Sketcher.Constraint("DistanceX", 8, 2, 12, 2, Q("8 in")),
    Sketcher.Constraint("DistanceX", 12, 2, 16, 2, Q("8 in")),
    Sketcher.Constraint("DistanceY", 20, 2, 0, 2, Q("12 in")),
    Sketcher.Constraint("DistanceY", 40, 2, 20, 2, Q("12 in")),
    Sketcher.Constraint("DistanceX", 0, 2, 0, 1, Q("121.9754 mm")),
    Sketcher.Constraint("DistanceY", 1, 2, 1, 1, Q("168.3756 mm")),
    Sketcher.Constraint("DistanceX", 0, 2, -1, 1, Q("42.4025 in")),
    Sketcher.Constraint("DistanceY", -1, 1, 0, 2, Q("1182.9843 mm")),
])
pocket1 = doc.addObject("PartDesign::Pocket", "Pocket")
body.addObject(pocket1)
pocket1.Profile = sketch4
pocket1.Length = Q("1 in")

# Sketch on YZ plane
sketch5 = doc.addObject("Sketcher::SketchObject", "Sketch004")
body.addObject(sketch5)
sketch5.AttachmentSupport = (doc.YZ_Plane, [""])
sketch5.MapMode = "FlatFace"
sketch5.AttachmentOffset = App.Placement(App.Vector(0, 0, -1107.5056), App.Rotation())
sketch5.addGeometry([
    Part.LineSegment(App.Vector(330.2, -182.8909, 0), App.Vector(330.2, -966.7088, 0)),
    Part.LineSegment(App.Vector(330.2, -966.7088, 0), App.Vector(25.4, -966.7088, 0)),
    Part.LineSegment(App.Vector(25.4, -966.7088, 0), App.Vector(25.4, -182.8909, 0)),
    Part.LineSegment(App.Vector(25.4, -182.8909, 0), App.Vector(330.2, -182.8909, 0)),
], False)
sketch5.addConstraint([
    Sketcher.Constraint("Coincident", 0, 2, 1, 1),
    Sketcher.Constraint("Coincident", 1, 2, 2, 1),
    Sketcher.Constraint("Coincident", 2, 2, 3, 1),
    Sketcher.Constraint("Coincident", 3, 2, 0, 1),
    Sketcher.Constraint("Vertical", 0),
    Sketcher.Constraint("Horizontal", 1),
    Sketcher.Constraint("Vertical", 2),
    Sketcher.Constraint("Horizontal", 3),
    Sketcher.Constraint("DistanceX", 1, 2, 1, 1, Q("12 in")),
    Sketcher.Constraint("DistanceX", -1, 1, 0, 2, Q("13 in")),
    Sketcher.Constraint("DistanceY", 0, 2, 0, 1, Q("783.818 mm")),
    Sketcher.Constraint("DistanceY", 0, 2, -1, 1, Q("38.0594 in")),
])
pocket2 = doc.addObject("PartDesign::Pocket", "Pocket001")
body.addObject(pocket2)
pocket2.Profile = sketch5
pocket2.Length = Q("24 in")
pocket2.Reversed = True

doc.recompute()
